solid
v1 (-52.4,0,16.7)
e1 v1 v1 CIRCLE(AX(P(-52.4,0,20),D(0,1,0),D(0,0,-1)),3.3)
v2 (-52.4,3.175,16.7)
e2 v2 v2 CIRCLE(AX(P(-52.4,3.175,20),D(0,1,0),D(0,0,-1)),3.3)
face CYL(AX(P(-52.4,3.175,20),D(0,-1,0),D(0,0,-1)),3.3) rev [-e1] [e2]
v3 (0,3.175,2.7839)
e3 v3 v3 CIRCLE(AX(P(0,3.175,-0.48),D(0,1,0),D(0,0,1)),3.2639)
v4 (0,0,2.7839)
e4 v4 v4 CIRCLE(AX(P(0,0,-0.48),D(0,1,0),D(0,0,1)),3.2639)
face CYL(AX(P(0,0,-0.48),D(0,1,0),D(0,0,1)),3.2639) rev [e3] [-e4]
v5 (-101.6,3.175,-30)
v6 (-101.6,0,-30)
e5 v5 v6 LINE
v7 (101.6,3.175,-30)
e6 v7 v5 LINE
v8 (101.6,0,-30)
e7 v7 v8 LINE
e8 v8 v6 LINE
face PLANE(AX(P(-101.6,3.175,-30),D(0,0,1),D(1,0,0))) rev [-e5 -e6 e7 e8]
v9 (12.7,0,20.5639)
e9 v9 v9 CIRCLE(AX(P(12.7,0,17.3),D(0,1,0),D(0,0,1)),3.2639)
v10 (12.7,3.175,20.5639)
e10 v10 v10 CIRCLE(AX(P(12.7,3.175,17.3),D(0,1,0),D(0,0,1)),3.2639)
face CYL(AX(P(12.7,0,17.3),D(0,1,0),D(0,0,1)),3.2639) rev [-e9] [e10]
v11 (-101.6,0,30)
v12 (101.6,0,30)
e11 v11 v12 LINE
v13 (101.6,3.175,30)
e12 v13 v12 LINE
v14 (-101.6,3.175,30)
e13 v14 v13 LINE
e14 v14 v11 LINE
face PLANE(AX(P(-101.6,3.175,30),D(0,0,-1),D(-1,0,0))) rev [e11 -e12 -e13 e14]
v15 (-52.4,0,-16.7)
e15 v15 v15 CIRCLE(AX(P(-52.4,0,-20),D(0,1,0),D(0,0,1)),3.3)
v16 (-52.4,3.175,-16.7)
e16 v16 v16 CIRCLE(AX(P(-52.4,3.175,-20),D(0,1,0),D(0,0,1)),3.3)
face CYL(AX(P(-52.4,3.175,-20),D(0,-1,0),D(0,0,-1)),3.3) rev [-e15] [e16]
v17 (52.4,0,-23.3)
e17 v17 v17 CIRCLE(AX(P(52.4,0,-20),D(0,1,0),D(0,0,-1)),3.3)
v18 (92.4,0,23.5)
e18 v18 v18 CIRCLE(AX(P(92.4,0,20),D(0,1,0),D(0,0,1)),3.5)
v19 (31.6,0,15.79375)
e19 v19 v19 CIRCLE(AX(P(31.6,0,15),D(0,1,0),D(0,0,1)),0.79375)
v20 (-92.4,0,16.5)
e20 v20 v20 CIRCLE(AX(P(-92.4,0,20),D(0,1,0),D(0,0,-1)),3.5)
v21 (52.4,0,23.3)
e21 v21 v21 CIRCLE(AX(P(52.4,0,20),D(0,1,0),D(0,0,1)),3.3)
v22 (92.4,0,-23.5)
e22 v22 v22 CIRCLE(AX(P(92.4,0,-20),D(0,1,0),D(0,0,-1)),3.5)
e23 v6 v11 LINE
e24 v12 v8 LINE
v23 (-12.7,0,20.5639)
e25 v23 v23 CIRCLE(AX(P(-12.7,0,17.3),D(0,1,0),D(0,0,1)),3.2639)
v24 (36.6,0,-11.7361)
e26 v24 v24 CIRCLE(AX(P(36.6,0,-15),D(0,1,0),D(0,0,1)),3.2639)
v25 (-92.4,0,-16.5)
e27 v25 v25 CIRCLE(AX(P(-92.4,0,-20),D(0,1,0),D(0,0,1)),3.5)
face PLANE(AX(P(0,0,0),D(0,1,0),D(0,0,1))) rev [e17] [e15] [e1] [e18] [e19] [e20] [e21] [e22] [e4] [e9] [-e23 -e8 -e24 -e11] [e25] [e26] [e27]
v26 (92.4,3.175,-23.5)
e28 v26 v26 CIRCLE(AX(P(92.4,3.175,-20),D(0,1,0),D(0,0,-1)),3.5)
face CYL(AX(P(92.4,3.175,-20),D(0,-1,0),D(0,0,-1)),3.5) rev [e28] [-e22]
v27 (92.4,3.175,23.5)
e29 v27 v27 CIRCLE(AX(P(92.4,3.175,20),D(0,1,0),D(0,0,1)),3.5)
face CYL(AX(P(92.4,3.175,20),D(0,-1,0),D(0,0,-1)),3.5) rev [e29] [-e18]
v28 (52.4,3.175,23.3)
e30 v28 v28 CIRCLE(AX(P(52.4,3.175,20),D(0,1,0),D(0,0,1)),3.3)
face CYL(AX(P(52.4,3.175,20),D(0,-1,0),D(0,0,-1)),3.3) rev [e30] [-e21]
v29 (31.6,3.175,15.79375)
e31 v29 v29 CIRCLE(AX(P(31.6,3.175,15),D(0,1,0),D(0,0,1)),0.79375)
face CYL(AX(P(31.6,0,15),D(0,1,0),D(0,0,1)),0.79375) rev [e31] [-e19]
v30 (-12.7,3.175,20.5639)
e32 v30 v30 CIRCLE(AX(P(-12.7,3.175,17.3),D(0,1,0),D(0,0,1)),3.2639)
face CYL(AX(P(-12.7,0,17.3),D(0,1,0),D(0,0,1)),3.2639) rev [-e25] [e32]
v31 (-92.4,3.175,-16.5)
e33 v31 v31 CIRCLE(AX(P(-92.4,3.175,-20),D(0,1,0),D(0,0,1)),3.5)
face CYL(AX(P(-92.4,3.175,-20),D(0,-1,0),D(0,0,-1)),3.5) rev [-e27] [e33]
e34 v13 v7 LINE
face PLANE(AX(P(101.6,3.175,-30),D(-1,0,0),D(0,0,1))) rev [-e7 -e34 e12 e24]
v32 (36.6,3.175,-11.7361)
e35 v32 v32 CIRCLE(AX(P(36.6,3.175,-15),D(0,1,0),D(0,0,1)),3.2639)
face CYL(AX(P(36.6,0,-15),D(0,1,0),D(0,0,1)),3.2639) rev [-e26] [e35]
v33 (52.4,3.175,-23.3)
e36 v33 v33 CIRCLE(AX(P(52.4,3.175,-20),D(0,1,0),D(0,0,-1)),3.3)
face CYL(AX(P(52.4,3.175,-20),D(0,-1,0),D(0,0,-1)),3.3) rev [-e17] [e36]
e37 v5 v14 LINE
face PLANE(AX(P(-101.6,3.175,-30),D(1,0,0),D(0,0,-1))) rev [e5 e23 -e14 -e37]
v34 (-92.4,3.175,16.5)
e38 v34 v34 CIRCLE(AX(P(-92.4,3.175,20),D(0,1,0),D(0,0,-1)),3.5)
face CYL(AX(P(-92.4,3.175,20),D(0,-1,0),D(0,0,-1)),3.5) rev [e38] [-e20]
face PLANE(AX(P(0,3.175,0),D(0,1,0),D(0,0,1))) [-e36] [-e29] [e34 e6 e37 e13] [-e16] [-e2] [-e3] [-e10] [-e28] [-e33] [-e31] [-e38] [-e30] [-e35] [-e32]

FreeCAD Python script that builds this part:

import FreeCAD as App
import Part
import Sketcher
Q = App.Units.Quantity

doc = App.newDocument("Part")
body = doc.addObject("PartDesign::Body", "Body")

# Sketch on XZ plane
sketch1 = body.newObject("Sketcher::SketchObject", "Sketch")
sketch1.AttachmentSupport = (doc.getObject("XZ_Plane"), [""])
sketch1.MapMode = "FlatFace"
sketch1.addGeometry([
    Part.LineSegment(App.Vector(-101.6, -30, 0), App.Vector(-101.6, 30, 0)),  # 0
    Part.LineSegment(App.Vector(-101.6, 30, 0), App.Vector(101.6, 30, 0)),  # 1
    Part.LineSegment(App.Vector(101.6, 30, 0), App.Vector(101.6, -30, 0)),  # 2
    Part.LineSegment(App.Vector(101.6, -30, 0), App.Vector(-101.6, -30, 0)),  # 3
    Part.Circle(App.Vector(-92.4, 20, 0), App.Vector(0, 0, 1), 3.5),  # 4
    Part.Circle(App.Vector(-52.4, 20, 0), App.Vector(0, 0, 1), 3.3),  # 5
    Part.Circle(App.Vector(52.4, 20, 0), App.Vector(0, 0, 1), 3.3),  # 6
    Part.Circle(App.Vector(92.4, 20, 0), App.Vector(0, 0, 1), 3.5),  # 7
    Part.Circle(App.Vector(-92.4, -20, 0), App.Vector(0, 0, 1), 3.5),  # 8
    Part.Circle(App.Vector(-52.4, -20, 0), App.Vector(0, 0, 1), 3.3),  # 9
    Part.Circle(App.Vector(52.4, -20, 0), App.Vector(0, 0, 1), 3.3),  # 10
    Part.Circle(App.Vector(92.4, -20, 0), App.Vector(0, 0, 1), 3.5),  # 11
], False)
sketch1.addConstraint([
    Sketcher.Constraint("Coincident", 0, 2, 1, 1),
    Sketcher.Constraint("Coincident", 1, 2, 2, 1),
    Sketcher.Constraint("Coincident", 2, 2, 3, 1),
    Sketcher.Constraint("Coincident", 3, 2, 0, 1),
    Sketcher.Constraint("Vertical", 0),
    Sketcher.Constraint("Horizontal", 1),
    Sketcher.Constraint("Vertical", 2),
    Sketcher.Constraint("Horizontal", 3),
    Sketcher.Constraint("Equal", 5, 6),
    Sketcher.Constraint("Equal", 4, 7),
    Sketcher.Constraint("Equal", 7, 8),
    Sketcher.Constraint("Equal", 6, 9),
    Sketcher.Constraint("Equal", 9, 10),
    Sketcher.Constraint("Equal", 8, 11),
    Sketcher.Constraint("Symmetric", 7, 3, 8, 3, -1, 1),
    Sketcher.Constraint("Symmetric", 6, 3, 9, 3, -1, 1),
    Sketcher.Constraint("Symmetric", 5, 3, 10, 3, -1, 1),
    Sketcher.Constraint("Symmetric", 4, 3, 11, 3, -1, 1),
    Sketcher.Constraint("Symmetric", 0, 2, 2, 2, -1, 1),
    Sketcher.Constraint("Symmetric", 5, 3, 6, 3, -2),
    Sketcher.Constraint("Symmetric", 4, 3, 7, 3, -2),
    Sketcher.Constraint("Horizontal", 4, 3, 5, 3),
    Sketcher.Constraint("DistanceX", 1, 1, 1, 2, Q("8 in")),
    Sketcher.Constraint("Diameter", 4, Q("7 mm")),
    Sketcher.Constraint("Diameter", 5, Q("6.6 mm")),
    Sketcher.Constraint("DistanceY", 0, 1, 0, 2, Q("60 mm")),
    Sketcher.Constraint("DistanceX", 4, 3, -1, 1, Q("92.4 mm")),
    Sketcher.Constraint("DistanceY", -1, 1, 4, 3, Q("20 mm")),
    Sketcher.Constraint("DistanceX", 5, 3, -1, 1, Q("52.4 mm")),
])
pad1 = body.newObject("PartDesign::Pad", "Pad")
pad1.Profile = sketch1
pad1.Length = Q("0.125 in")
pad1.Reversed = True

# Sketch on XZ plane
sketch2 = body.newObject("Sketcher::SketchObject", "Sketch001")
sketch2.AttachmentSupport = (doc.getObject("XZ_Plane"), [""])
sketch2.MapMode = "FlatFace"
sketch2.AttachmentOffset = App.Placement(App.Vector(0, 0, -0.125 * 25.4), App.Rotation())
sketch2.addGeometry([
    Part.Circle(App.Vector(-12.7, 17.3, 0), App.Vector(0, 0, 1), 3.2639),
    Part.Circle(App.Vector(12.7, 17.3, 0), App.Vector(0, 0, 1), 3.2639),
    Part.Circle(App.Vector(0, -0.48, 0), App.Vector(0, 0, 1), 3.2639),
], False)
sketch2.addConstraint([
    Sketcher.Constraint("Equal", 0, 1),
    Sketcher.Constraint("Equal", 1, 2),
    Sketcher.Constraint("Symmetric", 0, 3, 1, 3, -2),
    Sketcher.Constraint("PointOnObject", 2, 3, -2),
    Sketcher.Constraint("Diameter", 0, Q("0.257 in")),
    Sketcher.Constraint("DistanceX", 0, 3, 1, 3, Q("1 in")),
    Sketcher.Constraint("DistanceY", 2, 3, 0, 3, Q("0.7 in")),
    Sketcher.Constraint("DistanceY", -1, 1, 0, 3, Q("17.3 mm")),
])
pocket1 = body.newObject("PartDesign::Pocket", "Pocket")
pocket1.Profile = sketch2
pocket1.Type = "ThroughAll"
pocket1.Reversed = True

# Sketch on XZ plane
sketch3 = body.newObject("Sketcher::SketchObject", "Sketch002")
sketch3.AttachmentSupport = (doc.getObject("XZ_Plane"), [""])
sketch3.MapMode = "FlatFace"
sketch3.AttachmentOffset = App.Placement(App.Vector(0, 0, -0.125 * 25.4), App.Rotation())
sketch3.addGeometry([
    Part.Circle(App.Vector(31.6, 15, 0), App.Vector(0, 0, 1), 0.79375),
    Part.Circle(App.Vector(36.6, -15, 0), App.Vector(0, 0, 1), 3.2639),
], False)
sketch3.addConstraint([
    Sketcher.Constraint("Diameter", 0, Q("0.0625 in")),
    Sketcher.Constraint("Diameter", 1, Q("0.257 in")),
    Sketcher.Constraint("DistanceX", -1, 1, 0, 3, Q("31.6 mm")),
    Sketcher.Constraint("DistanceY", -1, 1, 0, 3, Q("15 mm")),
    Sketcher.Constraint("DistanceX", -1, 1, 1, 3, Q("36.6 mm")),
    Sketcher.Constraint("DistanceY", 1, 3, -1, 1, Q("15 mm")),
])
pocket2 = body.newObject("PartDesign::Pocket", "Pocket001")
pocket2.Profile = sketch3
pocket2.Type = "ThroughAll"
pocket2.Reversed = True

doc.recompute()
